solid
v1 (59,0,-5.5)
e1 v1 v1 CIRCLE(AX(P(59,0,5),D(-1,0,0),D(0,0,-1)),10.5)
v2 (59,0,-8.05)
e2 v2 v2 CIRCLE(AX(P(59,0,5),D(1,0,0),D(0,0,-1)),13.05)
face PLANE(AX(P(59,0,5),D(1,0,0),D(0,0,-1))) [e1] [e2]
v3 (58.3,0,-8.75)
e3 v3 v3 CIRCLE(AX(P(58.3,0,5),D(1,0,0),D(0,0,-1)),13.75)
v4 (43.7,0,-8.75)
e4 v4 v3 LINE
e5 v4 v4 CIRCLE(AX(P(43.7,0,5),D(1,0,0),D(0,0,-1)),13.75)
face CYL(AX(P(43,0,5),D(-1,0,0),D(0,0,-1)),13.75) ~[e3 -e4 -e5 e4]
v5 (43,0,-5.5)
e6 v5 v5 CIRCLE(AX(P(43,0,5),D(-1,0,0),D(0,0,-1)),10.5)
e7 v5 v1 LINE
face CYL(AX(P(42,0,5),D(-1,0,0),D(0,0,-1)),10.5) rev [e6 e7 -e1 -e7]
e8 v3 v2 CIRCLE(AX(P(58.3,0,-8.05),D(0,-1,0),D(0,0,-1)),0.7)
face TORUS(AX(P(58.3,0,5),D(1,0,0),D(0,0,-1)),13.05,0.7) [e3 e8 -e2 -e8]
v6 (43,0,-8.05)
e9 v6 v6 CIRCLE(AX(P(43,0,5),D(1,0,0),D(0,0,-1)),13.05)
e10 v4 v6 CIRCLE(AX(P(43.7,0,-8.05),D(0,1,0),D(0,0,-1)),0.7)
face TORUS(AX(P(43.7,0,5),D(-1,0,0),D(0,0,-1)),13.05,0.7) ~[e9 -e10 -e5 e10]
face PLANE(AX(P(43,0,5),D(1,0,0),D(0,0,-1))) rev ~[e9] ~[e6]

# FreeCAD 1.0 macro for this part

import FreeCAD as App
import Part
import Sketcher


def edges_at(feature, points):
    """Names of the edges that pass closest to the given points."""
    edges = feature.Shape.Edges
    near = lambda p: min(range(len(edges)), key=lambda i: edges[i].distToShape(Part.Vertex(*p))[0])
    return sorted({f"Edge{near(p) + 1}" for p in points})

doc = App.newDocument("Part")
body = doc.addObject("PartDesign::Body", "Body")

# Sketch on XY plane
sketch1 = body.newObject("Sketcher::SketchObject", "Sketch")
sketch1.AttachmentSupport = (doc.getObject("XY_Plane"), [""])
sketch1.MapMode = "FlatFace"
sketch1.AttachmentOffset = App.Placement(App.Vector(0, 0, -1), App.Rotation())
sketch1.addGeometry(Part.Circle(App.Vector(0, 0, 0), App.Vector(0, 0, 1), 10), False)
sketch1.addConstraint(Sketcher.Constraint("Coincident", 0, 3, -1, 1))
sketch1.addConstraint(Sketcher.Constraint("Diameter", 0, 21.0))
pad1 = body.newObject("PartDesign::Pad", "Pad")
pad1.Profile = sketch1
pad1.Length = 20
body2 = doc.addObject("PartDesign::Body", "Body001")

# Sketch on XY plane
sketch2 = body2.newObject("Sketcher::SketchObject", "Sketch001")
sketch2.AttachmentSupport = (doc.getObject("XY_Plane001"), [""])
sketch2.MapMode = "FlatFace"
sketch2.addGeometry(Part.Circle(App.Vector(0, 0, 0), App.Vector(0, 0, 1), 14), False)
sketch2.addConstraint(Sketcher.Constraint("Coincident", 0, 3, -1, 1))
sketch2.addConstraint(Sketcher.Constraint("Diameter", 0, 27.5))
pad2 = body2.newObject("PartDesign::Pad", "Pad001")
pad2.Profile = sketch2
pad2.Length = 16
doc.recompute()

boolean = body2.newObject("PartDesign::Boolean", "Boolean")
boolean.Type = "Cut"
boolean.addObjects([body])
doc.recompute()

fillet = body2.newObject("PartDesign::Fillet", "Fillet")
fillet.Base = (boolean, edges_at(boolean, [(-13.75, 0, 16), (-13.75, 0, 0)]))
fillet.Radius = 0.7
body3 = doc.addObject("PartDesign::Body", "Body002")
doc.recompute()

body2.Placement = App.Placement(App.Vector(0, 0, 0), App.Rotation(App.Vector(0, 1, 0), 90))
boolean2 = body3.newObject("PartDesign::Boolean", "Boolean001")
boolean2.Type = "Fuse"
boolean2.addObjects([body2])
body4 = doc.addObject("PartDesign::Body", "Body003")
doc.recompute()

body3.Placement = App.Placement(App.Vector(43, 0, 5), App.Rotation(App.Vector(0, 0, 1), 0))
boolean3 = body4.newObject("PartDesign::Boolean", "Boolean002")
boolean3.Type = "Fuse"
boolean3.addObjects([body3])

doc.recompute()
